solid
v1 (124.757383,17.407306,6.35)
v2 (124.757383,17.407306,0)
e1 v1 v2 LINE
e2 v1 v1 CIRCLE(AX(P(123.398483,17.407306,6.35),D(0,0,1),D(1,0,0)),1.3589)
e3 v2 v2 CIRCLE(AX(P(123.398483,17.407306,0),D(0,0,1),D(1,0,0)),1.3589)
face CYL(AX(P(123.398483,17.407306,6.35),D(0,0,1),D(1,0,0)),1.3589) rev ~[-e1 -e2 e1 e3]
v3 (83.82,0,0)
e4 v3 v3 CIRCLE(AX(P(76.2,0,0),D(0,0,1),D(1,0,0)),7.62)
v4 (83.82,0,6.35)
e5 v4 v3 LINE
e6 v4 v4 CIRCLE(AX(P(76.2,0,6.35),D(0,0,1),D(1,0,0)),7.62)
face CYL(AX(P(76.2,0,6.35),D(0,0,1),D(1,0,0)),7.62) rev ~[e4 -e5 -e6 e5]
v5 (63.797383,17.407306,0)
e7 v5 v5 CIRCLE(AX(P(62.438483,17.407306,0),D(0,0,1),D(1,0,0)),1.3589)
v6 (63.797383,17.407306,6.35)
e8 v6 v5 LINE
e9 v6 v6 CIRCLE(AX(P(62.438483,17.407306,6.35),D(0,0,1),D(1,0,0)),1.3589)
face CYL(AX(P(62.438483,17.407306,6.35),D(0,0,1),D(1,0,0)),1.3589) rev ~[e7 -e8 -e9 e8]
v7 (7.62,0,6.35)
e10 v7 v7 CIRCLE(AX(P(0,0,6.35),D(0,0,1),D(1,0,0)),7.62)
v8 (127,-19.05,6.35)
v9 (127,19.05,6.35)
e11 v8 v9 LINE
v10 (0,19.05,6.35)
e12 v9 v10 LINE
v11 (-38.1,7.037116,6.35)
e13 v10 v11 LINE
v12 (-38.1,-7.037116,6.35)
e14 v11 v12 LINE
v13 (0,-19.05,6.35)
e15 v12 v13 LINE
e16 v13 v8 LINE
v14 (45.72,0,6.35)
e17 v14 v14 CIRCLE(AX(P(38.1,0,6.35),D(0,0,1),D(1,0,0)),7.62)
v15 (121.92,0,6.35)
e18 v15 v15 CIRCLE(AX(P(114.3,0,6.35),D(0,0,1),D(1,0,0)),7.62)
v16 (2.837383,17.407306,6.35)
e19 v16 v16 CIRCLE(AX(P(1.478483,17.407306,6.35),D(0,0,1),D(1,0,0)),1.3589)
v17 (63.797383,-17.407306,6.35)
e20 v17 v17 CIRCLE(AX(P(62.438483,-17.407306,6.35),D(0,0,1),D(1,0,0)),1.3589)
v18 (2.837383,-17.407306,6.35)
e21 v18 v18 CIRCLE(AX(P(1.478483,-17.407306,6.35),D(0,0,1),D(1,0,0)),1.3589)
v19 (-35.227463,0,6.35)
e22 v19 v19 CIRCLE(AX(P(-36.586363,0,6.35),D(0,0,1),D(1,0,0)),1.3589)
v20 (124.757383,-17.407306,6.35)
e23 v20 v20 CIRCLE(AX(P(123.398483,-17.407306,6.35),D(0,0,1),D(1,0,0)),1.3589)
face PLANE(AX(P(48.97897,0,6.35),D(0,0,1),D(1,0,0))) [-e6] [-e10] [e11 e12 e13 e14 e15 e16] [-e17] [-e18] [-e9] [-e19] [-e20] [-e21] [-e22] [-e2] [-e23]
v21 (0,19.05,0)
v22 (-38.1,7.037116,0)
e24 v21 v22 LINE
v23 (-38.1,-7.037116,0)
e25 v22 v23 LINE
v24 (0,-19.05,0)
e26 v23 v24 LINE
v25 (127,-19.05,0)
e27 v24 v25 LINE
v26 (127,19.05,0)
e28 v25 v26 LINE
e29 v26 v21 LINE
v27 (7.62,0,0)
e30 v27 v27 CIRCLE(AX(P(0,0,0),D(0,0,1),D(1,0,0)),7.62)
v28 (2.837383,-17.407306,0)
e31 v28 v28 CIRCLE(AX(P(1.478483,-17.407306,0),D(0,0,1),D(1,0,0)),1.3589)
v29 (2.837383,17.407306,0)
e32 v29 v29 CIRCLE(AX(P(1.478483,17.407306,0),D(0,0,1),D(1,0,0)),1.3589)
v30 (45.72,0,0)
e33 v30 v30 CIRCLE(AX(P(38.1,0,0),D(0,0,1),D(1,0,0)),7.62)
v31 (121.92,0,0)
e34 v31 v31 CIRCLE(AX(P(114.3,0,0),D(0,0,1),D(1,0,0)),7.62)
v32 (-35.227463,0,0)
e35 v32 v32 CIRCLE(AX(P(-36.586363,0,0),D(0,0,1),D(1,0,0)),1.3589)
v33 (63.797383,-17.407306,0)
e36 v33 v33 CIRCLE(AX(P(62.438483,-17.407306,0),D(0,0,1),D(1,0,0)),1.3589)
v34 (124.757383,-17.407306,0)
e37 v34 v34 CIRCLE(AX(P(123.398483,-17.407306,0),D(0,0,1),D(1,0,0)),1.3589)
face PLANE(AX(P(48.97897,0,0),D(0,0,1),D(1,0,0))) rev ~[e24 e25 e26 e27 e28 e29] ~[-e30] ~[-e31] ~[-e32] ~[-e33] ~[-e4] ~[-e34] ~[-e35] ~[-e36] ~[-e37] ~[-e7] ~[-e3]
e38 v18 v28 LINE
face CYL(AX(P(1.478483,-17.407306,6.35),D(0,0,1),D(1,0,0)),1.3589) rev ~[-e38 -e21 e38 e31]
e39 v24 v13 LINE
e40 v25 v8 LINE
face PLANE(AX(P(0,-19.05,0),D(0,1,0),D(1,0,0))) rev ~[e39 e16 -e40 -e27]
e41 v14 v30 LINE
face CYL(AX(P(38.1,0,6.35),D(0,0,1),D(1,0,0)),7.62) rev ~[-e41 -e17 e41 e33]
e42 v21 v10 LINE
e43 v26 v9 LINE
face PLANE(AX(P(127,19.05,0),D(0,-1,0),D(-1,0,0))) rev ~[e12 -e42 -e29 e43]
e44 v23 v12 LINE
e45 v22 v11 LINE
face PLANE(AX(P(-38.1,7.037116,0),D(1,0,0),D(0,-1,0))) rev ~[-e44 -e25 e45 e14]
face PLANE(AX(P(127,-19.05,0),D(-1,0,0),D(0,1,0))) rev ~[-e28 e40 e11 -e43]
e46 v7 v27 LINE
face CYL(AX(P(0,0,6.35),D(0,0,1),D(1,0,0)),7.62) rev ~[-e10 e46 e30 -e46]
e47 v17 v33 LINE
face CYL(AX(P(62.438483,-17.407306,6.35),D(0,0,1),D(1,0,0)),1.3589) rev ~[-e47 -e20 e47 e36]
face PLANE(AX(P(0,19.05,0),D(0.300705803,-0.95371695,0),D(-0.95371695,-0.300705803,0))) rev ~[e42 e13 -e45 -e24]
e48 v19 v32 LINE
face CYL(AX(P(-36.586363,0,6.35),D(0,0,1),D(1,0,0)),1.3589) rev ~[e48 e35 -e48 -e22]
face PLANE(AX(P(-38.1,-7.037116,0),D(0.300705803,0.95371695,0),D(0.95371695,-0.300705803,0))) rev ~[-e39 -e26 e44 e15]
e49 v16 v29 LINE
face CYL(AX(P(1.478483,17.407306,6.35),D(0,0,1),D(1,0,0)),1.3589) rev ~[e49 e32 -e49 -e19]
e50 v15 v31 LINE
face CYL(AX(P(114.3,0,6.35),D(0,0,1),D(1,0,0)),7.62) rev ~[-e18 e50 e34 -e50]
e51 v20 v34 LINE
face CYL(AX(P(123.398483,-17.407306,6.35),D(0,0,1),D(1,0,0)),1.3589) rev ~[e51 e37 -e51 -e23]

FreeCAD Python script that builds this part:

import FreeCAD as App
import Part
import Sketcher

V = App.Vector
Q = App.Units.Quantity

doc = App.newDocument("Part")
body = doc.addObject("PartDesign::Body", "Body")

sketch1 = body.newObject("Sketcher::SketchObject", "Sketch")
sketch1.AttachmentSupport = (doc.getObject("XY_Plane"), [""])
sketch1.MapMode = "FlatFace"
sketch1.addGeometry([
    Part.LineSegment(V(127, 19.05, 0), V(0, 19.05, 0)),
    Part.LineSegment(V(0, 19.05, 0), V(-38.1, 7.037116, 0)),
    Part.LineSegment(V(-38.1, 7.037116, 0), V(-38.1, -7.037116, 0)),
    Part.LineSegment(V(-38.1, -7.037116, 0), V(0, -19.05, 0)),
    Part.LineSegment(V(0, -19.05, 0), V(127, -19.05, 0)),
    Part.LineSegment(V(127, -19.05, 0), V(127, 19.05, 0)),
], False)
sketch1.addConstraint([
    Sketcher.Constraint("Coincident", 0, 2, 1, 1),
    Sketcher.Constraint("Coincident", 1, 2, 2, 1),
    Sketcher.Constraint("Coincident", 2, 2, 3, 1),
    Sketcher.Constraint("Coincident", 3, 2, 4, 1),
    Sketcher.Constraint("Coincident", 4, 2, 5, 1),
    Sketcher.Constraint("Coincident", 5, 2, 0, 1),
    Sketcher.Constraint("Horizontal", 0),
    Sketcher.Constraint("Vertical", 2),
    Sketcher.Constraint("Horizontal", 4),
    Sketcher.Constraint("Vertical", 5),
    Sketcher.Constraint("Symmetric", 0, 2, 3, 2, -1, 1),
    Sketcher.Constraint("PointOnObject", 0, 2, -2),
    Sketcher.Constraint("Equal", 1, 3),
    Sketcher.Constraint("DistanceX", 0, 2, 0, 1, Q("5 in")),
    Sketcher.Constraint("DistanceY", 5, 1, 5, 2, Q("1.5 in")),
    Sketcher.Constraint("DistanceX", 1, 2, -1, 1, Q("1.5 in")),
    Sketcher.Constraint("Angle", 1, Q("-162.5 deg")),
])
pad1 = body.newObject("PartDesign::Pad", "Pad")
pad1.Profile = sketch1
pad1.Length = Q("0.25 in")

sketch2 = body.newObject("Sketcher::SketchObject", "Sketch001")
sketch2.AttachmentSupport = (doc.getObject("XY_Plane"), [""])
sketch2.MapMode = "FlatFace"
sketch2.AttachmentOffset = App.Placement(V(0, 0, 0.25 * 25.4), App.Rotation())
sketch2.addGeometry([
    Part.Circle(V(1.478483, 17.407306, 0), V(0, 0, 1), 1.3589),
    Part.Circle(V(62.438483, 17.407306, 0), V(0, 0, 1), 1.3589),
    Part.Circle(V(123.398483, 17.407306, 0), V(0, 0, 1), 1.3589),
    Part.Circle(V(123.398483, -17.407306, 0), V(0, 0, 1), 1.3589),
    Part.Circle(V(62.438483, -17.407306, 0), V(0, 0, 1), 1.3589),
    Part.Circle(V(1.478483, -17.407306, 0), V(0, 0, 1), 1.3589),
    Part.Circle(V(-36.586363, 0, 0), V(0, 0, 1), 1.3589),
    Part.Circle(V(0, 0, 0), V(0, 0, 1), 7.62),
    Part.Circle(V(38.1, 0, 0), V(0, 0, 1), 7.62),
    Part.Circle(V(76.2, 0, 0), V(0, 0, 1), 7.62),
    Part.Circle(V(114.3, 0, 0), V(0, 0, 1), 7.62),
], False)
sketch2.addConstraint([
    Sketcher.Constraint("Coincident", 7, 3, -1, 1),
    Sketcher.Constraint("Equal", 0, 1),
    Sketcher.Constraint("Equal", 1, 2),
    Sketcher.Constraint("Equal", 2, 3),
    Sketcher.Constraint("Equal", 3, 4),
    Sketcher.Constraint("Equal", 4, 5),
    Sketcher.Constraint("Equal", 5, 6),
    Sketcher.Constraint("Equal", 7, 8),
    Sketcher.Constraint("Equal", 8, 9),
    Sketcher.Constraint("Equal", 9, 10),
    Sketcher.Constraint("Symmetric", 2, 3, 3, 3, -1),
    Sketcher.Constraint("Symmetric", 1, 3, 4, 3, -1),
    Sketcher.Constraint("Symmetric", 0, 3, 5, 3, -1),
    Sketcher.Constraint("PointOnObject", 6, 3, -1),
    Sketcher.Constraint("PointOnObject", 8, 3, -1),
    Sketcher.Constraint("PointOnObject", 9, 3, -1),
    Sketcher.Constraint("PointOnObject", 10, 3, -1),
    Sketcher.Constraint("Horizontal", 0, 3, 1, 3),
    Sketcher.Constraint("Horizontal", 1, 3, 2, 3),
    Sketcher.Constraint("Diameter", 7, Q("0.6 in")),
    Sketcher.Constraint("Diameter", 0, Q("0.107 in")),
    Sketcher.Constraint("DistanceX", -1, 1, 9, 3, Q("3 in")),
    Sketcher.Constraint("DistanceX", -1, 1, 8, 3, Q("1.5 in")),
    Sketcher.Constraint("DistanceX", -1, 1, 10, 3, Q("4.5 in")),
    Sketcher.Constraint("DistanceX", 0, 3, 1, 3, Q("2.4 in")),
    Sketcher.Constraint("DistanceX", 1, 3, 2, 3, Q("2.4 in")),
    Sketcher.Constraint("DistanceY", 3, 3, 2, 3, Q("34.814612 mm")),
    Sketcher.Constraint("DistanceX", -1, 1, 0, 3, Q("1.478483 mm")),
    Sketcher.Constraint("DistanceX", 6, 3, -1, 1, Q("36.586363 mm")),
])
pocket1 = body.newObject("PartDesign::Pocket", "Pocket")
pocket1.Profile = sketch2
pocket1.Length = Q("1 in")

doc.recompute()
